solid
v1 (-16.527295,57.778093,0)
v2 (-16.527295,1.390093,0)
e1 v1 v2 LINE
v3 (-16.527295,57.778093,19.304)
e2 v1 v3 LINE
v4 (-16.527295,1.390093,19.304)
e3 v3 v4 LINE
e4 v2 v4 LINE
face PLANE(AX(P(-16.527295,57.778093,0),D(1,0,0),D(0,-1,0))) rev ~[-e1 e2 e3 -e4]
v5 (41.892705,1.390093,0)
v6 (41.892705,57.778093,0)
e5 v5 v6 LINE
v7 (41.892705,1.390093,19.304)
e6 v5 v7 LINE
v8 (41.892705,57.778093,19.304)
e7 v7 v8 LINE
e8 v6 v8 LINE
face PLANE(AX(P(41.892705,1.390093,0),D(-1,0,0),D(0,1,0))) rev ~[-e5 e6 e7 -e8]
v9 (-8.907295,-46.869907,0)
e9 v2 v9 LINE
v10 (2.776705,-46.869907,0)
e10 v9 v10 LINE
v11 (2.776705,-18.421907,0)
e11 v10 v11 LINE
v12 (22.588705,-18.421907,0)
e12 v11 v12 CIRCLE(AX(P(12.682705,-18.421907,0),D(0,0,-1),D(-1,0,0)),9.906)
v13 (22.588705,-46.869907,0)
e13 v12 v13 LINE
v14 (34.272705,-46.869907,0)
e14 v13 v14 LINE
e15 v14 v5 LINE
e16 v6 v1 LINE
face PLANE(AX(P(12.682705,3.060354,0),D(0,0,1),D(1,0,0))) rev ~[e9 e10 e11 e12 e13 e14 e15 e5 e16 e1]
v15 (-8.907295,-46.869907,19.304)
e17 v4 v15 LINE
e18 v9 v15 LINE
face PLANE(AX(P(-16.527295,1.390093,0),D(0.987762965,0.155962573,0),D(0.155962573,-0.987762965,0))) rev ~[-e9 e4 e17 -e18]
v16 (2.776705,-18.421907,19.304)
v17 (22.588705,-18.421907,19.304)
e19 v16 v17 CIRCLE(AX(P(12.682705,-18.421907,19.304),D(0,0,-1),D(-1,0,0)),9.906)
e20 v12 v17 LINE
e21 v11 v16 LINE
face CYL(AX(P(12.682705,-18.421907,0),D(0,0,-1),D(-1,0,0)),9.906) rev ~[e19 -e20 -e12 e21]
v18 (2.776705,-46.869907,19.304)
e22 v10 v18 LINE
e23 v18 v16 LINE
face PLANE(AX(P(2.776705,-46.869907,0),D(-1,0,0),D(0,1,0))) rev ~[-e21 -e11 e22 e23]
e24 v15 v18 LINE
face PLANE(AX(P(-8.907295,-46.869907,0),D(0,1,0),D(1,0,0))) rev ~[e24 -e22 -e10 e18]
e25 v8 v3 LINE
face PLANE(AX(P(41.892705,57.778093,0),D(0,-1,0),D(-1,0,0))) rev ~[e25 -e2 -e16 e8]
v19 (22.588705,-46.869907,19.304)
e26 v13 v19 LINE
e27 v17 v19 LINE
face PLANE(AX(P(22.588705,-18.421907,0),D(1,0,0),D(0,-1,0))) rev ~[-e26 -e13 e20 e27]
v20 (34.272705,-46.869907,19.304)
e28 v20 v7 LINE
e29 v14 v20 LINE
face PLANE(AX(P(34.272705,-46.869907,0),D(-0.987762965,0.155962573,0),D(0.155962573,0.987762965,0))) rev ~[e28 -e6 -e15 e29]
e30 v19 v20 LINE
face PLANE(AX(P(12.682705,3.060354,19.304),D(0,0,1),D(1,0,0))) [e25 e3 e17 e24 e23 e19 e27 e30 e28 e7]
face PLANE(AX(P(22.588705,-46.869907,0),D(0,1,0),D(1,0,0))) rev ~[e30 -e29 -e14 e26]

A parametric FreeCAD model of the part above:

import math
import FreeCAD as App
import Part
import Sketcher
from FreeCAD import Vector
Q = App.Units.Quantity

doc = App.newDocument("Part")
body = doc.addObject("PartDesign::Body", "Body")

# Sketch on XY plane
sketch1 = body.newObject("Sketcher::SketchObject", "Sketch")
sketch1.AttachmentSupport = (doc.getObject("XY_Plane"), [""])
sketch1.MapMode = "FlatFace"
sketch1.addGeometry([
    Part.LineSegment(Vector(42, 58, 0), Vector(-17, 58, 0)),  # 0
    Part.LineSegment(Vector(-17, 58, 0), Vector(-17, 1, 0)),  # 1
    Part.LineSegment(Vector(-17, 1, 0), Vector(-9, -47, 0)),  # 2
    Part.LineSegment(Vector(-9, -47, 0), Vector(3, -47, 0)),  # 3
    Part.LineSegment(Vector(3, -47, 0), Vector(3, -18, 0)),  # 4
    Part.ArcOfCircle(Part.Circle(Vector(13, -18, 0), Vector(0, 0, 1), 10), math.radians(0), math.radians(180)),  # 5
    Part.LineSegment(Vector(23, -18, 0), Vector(23, -47, 0)),  # 6
    Part.LineSegment(Vector(23, -47, 0), Vector(34, -47, 0)),  # 7
    Part.LineSegment(Vector(34, -47, 0), Vector(42, 1, 0)),  # 8
    Part.LineSegment(Vector(42, 1, 0), Vector(42, 58, 0)),  # 9
], False)
sketch1.addConstraint([
    Sketcher.Constraint("Coincident", 0, 2, 1, 1),
    Sketcher.Constraint("Coincident", 1, 2, 2, 1),
    Sketcher.Constraint("Coincident", 2, 2, 3, 1),
    Sketcher.Constraint("Coincident", 3, 2, 4, 1),
    Sketcher.Constraint("Tangent", 4, 2, 5, 2),
    Sketcher.Constraint("Tangent", 5, 1, 6, 1),
    Sketcher.Constraint("Coincident", 6, 2, 7, 1),
    Sketcher.Constraint("Coincident", 7, 2, 8, 1),
    Sketcher.Constraint("Coincident", 8, 2, 9, 1),
    Sketcher.Constraint("Coincident", 9, 2, 0, 1),
    Sketcher.Constraint("Horizontal", 0),
    Sketcher.Constraint("Vertical", 1),
    Sketcher.Constraint("Horizontal", 3),
    Sketcher.Constraint("Vertical", 4),
    Sketcher.Constraint("Vertical", 6),
    Sketcher.Constraint("Horizontal", 7),
    Sketcher.Constraint("Vertical", 9),
    Sketcher.Constraint("Horizontal", 3, 2, 6, 2),
    Sketcher.Constraint("Horizontal", 1, 2, 8, 2),
    Sketcher.Constraint("Equal", 3, 7),
    Sketcher.Constraint("Equal", 2, 8),
    Sketcher.Constraint("Radius", 5, Q("0.39 in")),
    Sketcher.Constraint("DistanceX", 0, 2, 0, 1, Q("2.3 in")),
    Sketcher.Constraint("DistanceY", 5, 3, 0, 2, Q("3 in")),
    Sketcher.Constraint("DistanceX", 3, 1, 3, 2, Q("0.46 in")),
    Sketcher.Constraint("DistanceY", 1, 2, 1, 1, Q("2.22 in")),
    Sketcher.Constraint("DistanceY", 4, 1, 4, 2, Q("1.12 in")),
    Sketcher.Constraint("DistanceX", -1, 1, 5, 3, Q("12.682705 mm")),
    Sketcher.Constraint("DistanceY", 5, 3, -1, 1, Q("18.421907 mm")),
])
pad1 = body.newObject("PartDesign::Pad", "Pad")
pad1.Profile = sketch1
pad1.Length = Q("0.76 in")

doc.recompute()
